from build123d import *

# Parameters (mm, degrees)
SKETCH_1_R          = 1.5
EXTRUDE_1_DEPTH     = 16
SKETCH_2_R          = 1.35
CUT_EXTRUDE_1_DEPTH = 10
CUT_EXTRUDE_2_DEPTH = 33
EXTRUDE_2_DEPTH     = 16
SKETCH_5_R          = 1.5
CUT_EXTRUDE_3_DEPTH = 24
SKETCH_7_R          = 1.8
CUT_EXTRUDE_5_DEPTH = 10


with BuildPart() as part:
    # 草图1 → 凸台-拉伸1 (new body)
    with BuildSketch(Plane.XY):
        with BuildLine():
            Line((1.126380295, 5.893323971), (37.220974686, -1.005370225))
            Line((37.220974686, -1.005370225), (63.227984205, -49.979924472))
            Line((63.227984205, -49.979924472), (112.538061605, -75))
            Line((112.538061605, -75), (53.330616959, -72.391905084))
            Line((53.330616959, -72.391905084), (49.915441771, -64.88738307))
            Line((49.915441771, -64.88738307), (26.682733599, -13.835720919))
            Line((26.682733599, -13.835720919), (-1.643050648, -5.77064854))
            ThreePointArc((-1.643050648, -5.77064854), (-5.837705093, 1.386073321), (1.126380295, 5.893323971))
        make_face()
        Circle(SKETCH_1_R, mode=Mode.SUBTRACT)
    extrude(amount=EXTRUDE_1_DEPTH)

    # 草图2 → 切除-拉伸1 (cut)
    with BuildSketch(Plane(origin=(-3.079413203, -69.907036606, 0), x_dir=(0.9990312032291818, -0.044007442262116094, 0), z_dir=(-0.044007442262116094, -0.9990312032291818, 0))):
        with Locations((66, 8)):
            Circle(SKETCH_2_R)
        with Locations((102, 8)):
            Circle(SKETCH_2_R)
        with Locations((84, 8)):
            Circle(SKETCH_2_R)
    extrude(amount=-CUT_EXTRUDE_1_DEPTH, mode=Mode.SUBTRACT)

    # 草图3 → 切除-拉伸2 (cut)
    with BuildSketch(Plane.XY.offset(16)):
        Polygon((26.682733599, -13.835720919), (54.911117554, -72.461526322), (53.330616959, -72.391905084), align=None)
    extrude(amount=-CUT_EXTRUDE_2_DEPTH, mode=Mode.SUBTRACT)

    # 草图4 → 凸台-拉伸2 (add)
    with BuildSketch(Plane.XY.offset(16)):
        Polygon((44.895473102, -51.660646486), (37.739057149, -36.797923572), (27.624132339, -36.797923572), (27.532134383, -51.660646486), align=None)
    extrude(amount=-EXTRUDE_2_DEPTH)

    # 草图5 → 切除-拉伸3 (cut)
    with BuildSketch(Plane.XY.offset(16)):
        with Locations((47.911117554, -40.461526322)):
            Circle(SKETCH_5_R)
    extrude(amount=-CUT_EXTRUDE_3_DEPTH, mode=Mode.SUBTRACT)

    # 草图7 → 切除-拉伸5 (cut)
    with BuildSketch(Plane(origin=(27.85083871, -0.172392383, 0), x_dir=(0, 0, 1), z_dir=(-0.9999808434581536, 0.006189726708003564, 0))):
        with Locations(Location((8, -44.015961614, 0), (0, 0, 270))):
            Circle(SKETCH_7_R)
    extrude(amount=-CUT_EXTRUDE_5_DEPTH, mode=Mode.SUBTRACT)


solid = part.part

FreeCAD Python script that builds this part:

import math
import FreeCAD as App
import Part
import Sketcher

doc = App.newDocument("Part")
body = doc.addObject("PartDesign::Body", "Body")

# Sketch on XY plane
sketch1 = body.newObject("Sketcher::SketchObject", "Sketch")
sketch1.AttachmentSupport = (doc.getObject("XY_Plane"), [""])
sketch1.MapMode = "FlatFace"
sketch1.addGeometry([
    Part.LineSegment(App.Vector(37.2, -1, 0), App.Vector(1.1, 5.9, 0)),  # 0
    Part.ArcOfCircle(Part.Circle(App.Vector(0, 0, 0), App.Vector(0, 0, 1), 6), math.radians(79), math.radians(254)),  # 1
    Part.LineSegment(App.Vector(-1.6, -5.8, 0), App.Vector(26.7, -13.8, 0)),  # 2
    Part.LineSegment(App.Vector(26.7, -13.8, 0), App.Vector(49.9, -64.9, 0)),  # 3
    Part.LineSegment(App.Vector(49.9, -64.9, 0), App.Vector(53.3, -72.4, 0)),  # 4
    Part.LineSegment(App.Vector(53.3, -72.4, 0), App.Vector(112.5, -75, 0)),  # 5
    Part.LineSegment(App.Vector(112.5, -75, 0), App.Vector(63.2, -50, 0)),  # 6
    Part.LineSegment(App.Vector(63.2, -50, 0), App.Vector(37.2, -1, 0)),  # 7
    Part.Circle(App.Vector(0, 0, 0), App.Vector(0, 0, 1), 1.5),  # 8
], False)
sketch1.addConstraint([
    Sketcher.Constraint("Tangent", 0, 2, 1, 1),
    Sketcher.Constraint("Tangent", 1, 2, 2, 1),
    Sketcher.Constraint("Coincident", 2, 2, 3, 1),
    Sketcher.Constraint("Coincident", 3, 2, 4, 1),
    Sketcher.Constraint("Coincident", 4, 2, 5, 1),
    Sketcher.Constraint("Coincident", 5, 2, 6, 1),
    Sketcher.Constraint("Coincident", 6, 2, 7, 1),
    Sketcher.Constraint("Coincident", 7, 2, 0, 1),
    Sketcher.Constraint("Coincident", 1, 3, -1, 1),
    Sketcher.Constraint("Coincident", 8, 3, -1, 1),
    Sketcher.Constraint("Parallel", 3, 4),
    Sketcher.Constraint("Diameter", 8, 3.0),
    Sketcher.Constraint("Radius", 1, 6.0),
    Sketcher.Constraint("DistanceY", 5, 2, -1, 1, 75.0),
    Sketcher.Constraint("Distance", 0, 36.747949),
    Sketcher.Constraint("Distance", 3, 56.08949),
    Sketcher.Constraint("Distance", 5, 59.26486),
    Sketcher.Constraint("DistanceX", -1, 1, 0, 2, 1.12638),
    Sketcher.Constraint("DistanceX", 1, 2, -1, 1, 1.643051),
    Sketcher.Constraint("DistanceY", 2, 2, -1, 1, 13.835721),
    Sketcher.Constraint("DistanceX", -1, 1, 3, 2, 49.915442),
    Sketcher.Constraint("DistanceX", -1, 1, 5, 2, 112.538062),
    Sketcher.Constraint("DistanceY", 3, 2, 6, 2, 14.907459),
    Sketcher.Constraint("DistanceX", 2, 2, 6, 2, 36.545251),
])
pad1 = body.newObject("PartDesign::Pad", "Pad")
pad1.Profile = sketch1
pad1.Length = 16

# Sketch on an angled plane
sketch2 = body.newObject("Sketcher::SketchObject", "Sketch001")
sketch2.Placement = App.Placement(App.Vector(-3.079413, -69.907037, 0), App.Rotation(App.Vector(0.999031203, -0.044007442, 0), App.Vector(0, 0, 1), App.Vector(-0.044007442, -0.999031203, 0), "ZXY"))
sketch2.addGeometry([
    Part.Circle(App.Vector(66, 8, 0), App.Vector(0, 0, 1), 1.4),
    Part.Circle(App.Vector(102, 8, 0), App.Vector(0, 0, 1), 1.4),
    Part.Circle(App.Vector(84, 8, 0), App.Vector(0, 0, 1), 1.4),
], False)
sketch2.addConstraint([
    Sketcher.Constraint("Equal", 0, 1),
    Sketcher.Constraint("Equal", 1, 2),
    Sketcher.Constraint("Horizontal", 0, 3, 1, 3),
    Sketcher.Constraint("Horizontal", 1, 3, 2, 3),
    Sketcher.Constraint("Diameter", 0, 2.7),
    Sketcher.Constraint("DistanceX", -1, 1, 0, 3, 66.0),
    Sketcher.Constraint("DistanceY", -1, 1, 0, 3, 8.0),
    Sketcher.Constraint("DistanceX", -1, 1, 1, 3, 102.0),
    Sketcher.Constraint("DistanceX", -1, 1, 2, 3, 84.0),
])
pocket1 = body.newObject("PartDesign::Pocket", "Pocket")
pocket1.Profile = sketch2
pocket1.Length = 10

# Sketch on XY plane
sketch3 = body.newObject("Sketcher::SketchObject", "Sketch002")
sketch3.AttachmentSupport = (doc.getObject("XY_Plane"), [""])
sketch3.MapMode = "FlatFace"
sketch3.AttachmentOffset = App.Placement(App.Vector(0, 0, 16), App.Rotation())
sketch3.addGeometry([
    Part.LineSegment(App.Vector(54.9, -72.5, 0), App.Vector(26.7, -13.8, 0)),
    Part.LineSegment(App.Vector(26.7, -13.8, 0), App.Vector(53.3, -72.4, 0)),
    Part.LineSegment(App.Vector(53.3, -72.4, 0), App.Vector(54.9, -72.5, 0)),
], False)
sketch3.addConstraint([
    Sketcher.Constraint("Coincident", 0, 2, 1, 1),
    Sketcher.Constraint("Coincident", 1, 2, 2, 1),
    Sketcher.Constraint("Coincident", 2, 2, 0, 1),
    Sketcher.Constraint("DistanceX", 1, 2, 2, 2, 1.580501),
    Sketcher.Constraint("DistanceY", 0, 2, -1, 1, 13.835721),
    Sketcher.Constraint("DistanceY", 2, 2, 1, 2, 0.069621),
    Sketcher.Constraint("Distance", 0, 65.067862),
    Sketcher.Constraint("Distance", 1, 64.334566),
    Sketcher.Constraint("DistanceX", -1, 1, 0, 2, 26.682734),
])
pocket2 = body.newObject("PartDesign::Pocket", "Pocket001")
pocket2.Profile = sketch3
pocket2.Length = 33

# Sketch on XY plane
sketch4 = body.newObject("Sketcher::SketchObject", "Sketch003")
sketch4.AttachmentSupport = (doc.getObject("XY_Plane"), [""])
sketch4.MapMode = "FlatFace"
sketch4.AttachmentOffset = App.Placement(App.Vector(0, 0, 16), App.Rotation())
sketch4.addGeometry([
    Part.LineSegment(App.Vector(45, -52, 0), App.Vector(38, -37, 0)),
    Part.LineSegment(App.Vector(38, -37, 0), App.Vector(28, -37, 0)),
    Part.LineSegment(App.Vector(28, -37, 0), App.Vector(28, -52, 0)),
    Part.LineSegment(App.Vector(28, -52, 0), App.Vector(45, -52, 0)),
], False)
sketch4.addConstraint([
    Sketcher.Constraint("Coincident", 0, 2, 1, 1),
    Sketcher.Constraint("Coincident", 1, 2, 2, 1),
    Sketcher.Constraint("Coincident", 2, 2, 3, 1),
    Sketcher.Constraint("Coincident", 3, 2, 0, 1),
    Sketcher.Constraint("Horizontal", 1),
    Sketcher.Constraint("Horizontal", 3),
    Sketcher.Constraint("DistanceX", 3, 1, 3, 2, 17.363339),
    Sketcher.Constraint("DistanceX", 1, 2, 1, 1, 10.114925),
    Sketcher.Constraint("DistanceX", 1, 2, 3, 2, 17.271341),
    Sketcher.Constraint("Distance", 0, 16.495903),
    Sketcher.Constraint("DistanceX", -1, 1, 0, 2, 37.739057),
    Sketcher.Constraint("DistanceY", 0, 2, -1, 1, 36.797924),
])
pad2 = body.newObject("PartDesign::Pad", "Pad001")
pad2.Profile = sketch4
pad2.Length = 16
pad2.Reversed = True

# Sketch on XY plane
sketch5 = body.newObject("Sketcher::SketchObject", "Sketch004")
sketch5.AttachmentSupport = (doc.getObject("XY_Plane"), [""])
sketch5.MapMode = "FlatFace"
sketch5.AttachmentOffset = App.Placement(App.Vector(0, 0, 16), App.Rotation())
sketch5.addGeometry(Part.Circle(App.Vector(47.9, -40.5, 0), App.Vector(0, 0, 1), 1.5), False)
sketch5.addConstraint([
    Sketcher.Constraint("Diameter", 0, 3.0),
    Sketcher.Constraint("DistanceX", -1, 1, 0, 3, 47.911118),
    Sketcher.Constraint("DistanceY", 0, 3, -1, 1, 40.461526),
])
pocket3 = body.newObject("PartDesign::Pocket", "Pocket002")
pocket3.Profile = sketch5
pocket3.Length = 24

# Sketch on an angled plane
sketch6 = body.newObject("Sketcher::SketchObject", "Sketch005")
sketch6.Placement = App.Placement(App.Vector(27.850839, -0.172392, 0), App.Rotation(App.Vector(0, 0, 1), App.Vector(0.006189727, 0.999980843, 0), App.Vector(-0.999980843, 0.006189727, 0), "ZXY"))
sketch6.addGeometry(Part.Circle(App.Vector(8, -44, 0), App.Vector(0, 0, 1), 1.8), False)
sketch6.addConstraint([
    Sketcher.Constraint("Diameter", 0, 3.6),
    Sketcher.Constraint("DistanceX", -1, 1, 0, 3, 8.0),
    Sketcher.Constraint("DistanceY", 0, 3, -1, 1, 44.015962),
])
pocket4 = body.newObject("PartDesign::Pocket", "Pocket003")
pocket4.Profile = sketch6
pocket4.Length = 10

doc.recompute()
